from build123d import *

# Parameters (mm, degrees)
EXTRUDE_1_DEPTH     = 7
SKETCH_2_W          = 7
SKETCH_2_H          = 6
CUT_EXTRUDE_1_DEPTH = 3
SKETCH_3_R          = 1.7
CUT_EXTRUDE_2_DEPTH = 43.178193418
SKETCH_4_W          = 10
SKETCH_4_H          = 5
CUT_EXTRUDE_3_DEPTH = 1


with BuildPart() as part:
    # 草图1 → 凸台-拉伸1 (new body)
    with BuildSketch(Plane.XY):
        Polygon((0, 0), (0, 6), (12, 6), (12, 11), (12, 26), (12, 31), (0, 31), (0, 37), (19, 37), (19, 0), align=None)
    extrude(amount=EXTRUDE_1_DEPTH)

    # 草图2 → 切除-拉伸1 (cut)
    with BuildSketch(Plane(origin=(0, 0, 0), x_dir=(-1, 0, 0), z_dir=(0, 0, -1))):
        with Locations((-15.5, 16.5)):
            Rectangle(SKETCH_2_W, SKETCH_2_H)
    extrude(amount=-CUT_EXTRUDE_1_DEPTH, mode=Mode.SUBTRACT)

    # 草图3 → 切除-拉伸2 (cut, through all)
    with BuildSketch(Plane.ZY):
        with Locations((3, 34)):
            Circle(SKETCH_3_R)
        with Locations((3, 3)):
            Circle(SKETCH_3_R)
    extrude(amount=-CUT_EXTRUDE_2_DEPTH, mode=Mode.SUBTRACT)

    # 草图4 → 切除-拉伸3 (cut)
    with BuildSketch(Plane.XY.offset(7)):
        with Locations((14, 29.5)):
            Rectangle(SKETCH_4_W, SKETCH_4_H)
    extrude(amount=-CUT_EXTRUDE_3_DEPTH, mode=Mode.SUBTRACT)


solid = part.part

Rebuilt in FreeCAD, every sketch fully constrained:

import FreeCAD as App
import Part
import Sketcher

V = App.Vector

doc = App.newDocument("Part")
body = doc.addObject("PartDesign::Body", "Body")

# Sketch on XY plane
sketch1 = body.newObject("Sketcher::SketchObject", "Sketch")
sketch1.AttachmentSupport = (doc.getObject("XY_Plane"), [""])
sketch1.MapMode = "FlatFace"
sketch1.addGeometry([
    Part.LineSegment(V(0, 6, 0), V(0, 0, 0)),  # 0
    Part.LineSegment(V(0, 0, 0), V(19, 0, 0)),  # 1
    Part.LineSegment(V(19, 0, 0), V(19, 37, 0)),  # 2
    Part.LineSegment(V(19, 37, 0), V(0, 37, 0)),  # 3
    Part.LineSegment(V(0, 37, 0), V(0, 31, 0)),  # 4
    Part.LineSegment(V(0, 31, 0), V(12, 31, 0)),  # 5
    Part.LineSegment(V(12, 31, 0), V(12, 6, 0)),  # 6
    Part.LineSegment(V(12, 6, 0), V(0, 6, 0)),  # 7
], False)
sketch1.addConstraint([
    Sketcher.Constraint("Coincident", 0, 2, 1, 1),
    Sketcher.Constraint("Coincident", 1, 2, 2, 1),
    Sketcher.Constraint("Coincident", 2, 2, 3, 1),
    Sketcher.Constraint("Coincident", 3, 2, 4, 1),
    Sketcher.Constraint("Coincident", 4, 2, 5, 1),
    Sketcher.Constraint("Coincident", 5, 2, 6, 1),
    Sketcher.Constraint("Coincident", 6, 2, 7, 1),
    Sketcher.Constraint("Coincident", 7, 2, 0, 1),
    Sketcher.Constraint("Vertical", 0),
    Sketcher.Constraint("Horizontal", 1),
    Sketcher.Constraint("Vertical", 2),
    Sketcher.Constraint("Horizontal", 3),
    Sketcher.Constraint("Vertical", 4),
    Sketcher.Constraint("Horizontal", 5),
    Sketcher.Constraint("Vertical", 6),
    Sketcher.Constraint("Horizontal", 7),
    Sketcher.Constraint("Coincident", 0, 2, -1, 1),
    Sketcher.Constraint("PointOnObject", 3, 2, -2),
    Sketcher.Constraint("Equal", 0, 4),
    Sketcher.Constraint("DistanceX", 1, 1, 1, 2, 19.0),
    Sketcher.Constraint("DistanceX", 5, 1, 5, 2, 12.0),
    Sketcher.Constraint("DistanceY", 0, 2, 0, 1, 6.0),
    Sketcher.Constraint("DistanceY", 2, 1, 2, 2, 37.0),
])
pad1 = body.newObject("PartDesign::Pad", "Pad")
pad1.Profile = sketch1
pad1.Length = 7

# Sketch on XY plane
sketch2 = body.newObject("Sketcher::SketchObject", "Sketch001")
sketch2.AttachmentSupport = (doc.getObject("XY_Plane"), [""])
sketch2.MapMode = "FlatFace"
sketch2.addGeometry([
    Part.LineSegment(V(19, 19.5, 0), V(19, 13.5, 0)),
    Part.LineSegment(V(19, 13.5, 0), V(12, 13.5, 0)),
    Part.LineSegment(V(12, 13.5, 0), V(12, 19.5, 0)),
    Part.LineSegment(V(12, 19.5, 0), V(19, 19.5, 0)),
], False)
sketch2.addConstraint([
    Sketcher.Constraint("Coincident", 0, 2, 1, 1),
    Sketcher.Constraint("Coincident", 1, 2, 2, 1),
    Sketcher.Constraint("Coincident", 2, 2, 3, 1),
    Sketcher.Constraint("Coincident", 3, 2, 0, 1),
    Sketcher.Constraint("Vertical", 0),
    Sketcher.Constraint("Horizontal", 1),
    Sketcher.Constraint("Vertical", 2),
    Sketcher.Constraint("Horizontal", 3),
    Sketcher.Constraint("DistanceX", 1, 2, 1, 1, 7.0),
    Sketcher.Constraint("DistanceY", 0, 2, 0, 1, 6.0),
    Sketcher.Constraint("DistanceX", -1, 1, 0, 2, 19.0),
    Sketcher.Constraint("DistanceY", -1, 1, 0, 2, 13.5),
])
pocket1 = body.newObject("PartDesign::Pocket", "Pocket")
pocket1.Profile = sketch2
pocket1.Length = 3
pocket1.Reversed = True

# Sketch on YZ plane
sketch3 = body.newObject("Sketcher::SketchObject", "Sketch002")
sketch3.AttachmentSupport = (doc.getObject("YZ_Plane"), [""])
sketch3.MapMode = "FlatFace"
sketch3.addGeometry([
    Part.Circle(V(34, 3, 0), V(0, 0, 1), 1.7),
    Part.Circle(V(3, 3, 0), V(0, 0, 1), 1.7),
], False)
sketch3.addConstraint([
    Sketcher.Constraint("Equal", 0, 1),
    Sketcher.Constraint("Horizontal", 0, 3, 1, 3),
    Sketcher.Constraint("Diameter", 0, 3.4),
    Sketcher.Constraint("DistanceX", -1, 1, 0, 3, 34.0),
    Sketcher.Constraint("DistanceY", -1, 1, 0, 3, 3.0),
    Sketcher.Constraint("DistanceX", -1, 1, 1, 3, 3.0),
])
pocket2 = body.newObject("PartDesign::Pocket", "Pocket001")
pocket2.Profile = sketch3
pocket2.Type = "ThroughAll"
pocket2.Reversed = True

# Sketch on XY plane
sketch4 = body.newObject("Sketcher::SketchObject", "Sketch003")
sketch4.AttachmentSupport = (doc.getObject("XY_Plane"), [""])
sketch4.MapMode = "FlatFace"
sketch4.AttachmentOffset = App.Placement(V(0, 0, 7), App.Rotation())
sketch4.addGeometry([
    Part.LineSegment(V(9, 32, 0), V(9, 27, 0)),
    Part.LineSegment(V(9, 27, 0), V(19, 27, 0)),
    Part.LineSegment(V(19, 27, 0), V(19, 32, 0)),
    Part.LineSegment(V(19, 32, 0), V(9, 32, 0)),
], False)
sketch4.addConstraint([
    Sketcher.Constraint("Coincident", 0, 2, 1, 1),
    Sketcher.Constraint("Coincident", 1, 2, 2, 1),
    Sketcher.Constraint("Coincident", 2, 2, 3, 1),
    Sketcher.Constraint("Coincident", 3, 2, 0, 1),
    Sketcher.Constraint("Vertical", 0),
    Sketcher.Constraint("Horizontal", 1),
    Sketcher.Constraint("Vertical", 2),
    Sketcher.Constraint("Horizontal", 3),
    Sketcher.Constraint("DistanceX", 1, 1, 1, 2, 10.0),
    Sketcher.Constraint("DistanceY", 0, 2, 0, 1, 5.0),
    Sketcher.Constraint("DistanceX", -1, 1, 0, 2, 9.0),
    Sketcher.Constraint("DistanceY", -1, 1, 0, 2, 27.0),
])
pocket3 = body.newObject("PartDesign::Pocket", "Pocket002")
pocket3.Profile = sketch4
pocket3.Length = 1

doc.recompute()
